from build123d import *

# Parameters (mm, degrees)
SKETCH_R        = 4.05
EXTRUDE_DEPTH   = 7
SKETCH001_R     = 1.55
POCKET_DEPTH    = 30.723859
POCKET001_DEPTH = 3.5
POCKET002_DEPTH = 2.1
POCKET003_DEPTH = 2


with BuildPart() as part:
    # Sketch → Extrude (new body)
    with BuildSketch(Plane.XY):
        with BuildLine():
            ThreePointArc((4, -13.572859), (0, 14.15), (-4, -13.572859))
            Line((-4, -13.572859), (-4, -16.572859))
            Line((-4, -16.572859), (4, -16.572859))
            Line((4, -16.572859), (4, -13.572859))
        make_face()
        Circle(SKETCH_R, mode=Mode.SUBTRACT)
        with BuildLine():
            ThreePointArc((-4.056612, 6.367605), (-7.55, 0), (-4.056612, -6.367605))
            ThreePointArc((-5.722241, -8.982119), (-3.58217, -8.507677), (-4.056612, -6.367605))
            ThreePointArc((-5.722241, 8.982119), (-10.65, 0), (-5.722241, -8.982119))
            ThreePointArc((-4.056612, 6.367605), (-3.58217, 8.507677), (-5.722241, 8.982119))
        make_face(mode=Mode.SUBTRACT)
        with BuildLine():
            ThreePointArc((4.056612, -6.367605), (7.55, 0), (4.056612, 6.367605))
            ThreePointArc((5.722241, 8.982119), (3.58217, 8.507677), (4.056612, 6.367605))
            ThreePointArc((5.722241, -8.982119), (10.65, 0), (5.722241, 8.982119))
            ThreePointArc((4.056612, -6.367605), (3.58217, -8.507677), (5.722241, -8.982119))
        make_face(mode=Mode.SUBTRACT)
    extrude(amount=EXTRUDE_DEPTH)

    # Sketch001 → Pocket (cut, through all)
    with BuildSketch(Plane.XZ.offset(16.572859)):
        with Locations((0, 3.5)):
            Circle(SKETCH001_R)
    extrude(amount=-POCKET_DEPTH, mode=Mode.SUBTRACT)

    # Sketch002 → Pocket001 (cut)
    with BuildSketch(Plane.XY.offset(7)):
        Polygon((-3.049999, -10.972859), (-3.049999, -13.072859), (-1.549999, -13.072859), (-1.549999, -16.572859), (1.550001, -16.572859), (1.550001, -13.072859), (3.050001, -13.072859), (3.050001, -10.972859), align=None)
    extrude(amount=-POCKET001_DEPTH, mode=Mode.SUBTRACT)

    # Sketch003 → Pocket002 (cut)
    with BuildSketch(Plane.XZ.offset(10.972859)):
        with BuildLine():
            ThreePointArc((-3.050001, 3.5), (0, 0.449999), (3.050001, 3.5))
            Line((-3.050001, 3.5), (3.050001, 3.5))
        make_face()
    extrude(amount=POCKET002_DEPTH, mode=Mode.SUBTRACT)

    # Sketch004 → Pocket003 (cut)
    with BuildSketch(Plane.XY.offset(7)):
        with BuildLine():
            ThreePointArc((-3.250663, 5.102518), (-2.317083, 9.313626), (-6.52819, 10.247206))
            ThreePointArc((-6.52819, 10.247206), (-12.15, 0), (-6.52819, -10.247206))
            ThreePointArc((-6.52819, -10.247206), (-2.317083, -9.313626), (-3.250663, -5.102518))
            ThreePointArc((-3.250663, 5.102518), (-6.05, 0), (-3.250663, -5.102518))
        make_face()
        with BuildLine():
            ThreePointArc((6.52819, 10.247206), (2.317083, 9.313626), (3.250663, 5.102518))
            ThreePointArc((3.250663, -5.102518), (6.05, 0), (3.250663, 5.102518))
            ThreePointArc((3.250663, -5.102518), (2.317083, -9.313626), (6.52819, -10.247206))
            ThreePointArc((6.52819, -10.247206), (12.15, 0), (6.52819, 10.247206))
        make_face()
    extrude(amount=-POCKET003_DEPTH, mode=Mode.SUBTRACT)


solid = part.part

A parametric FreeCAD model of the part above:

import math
import FreeCAD as App
import Part
import Sketcher


def add_polygon(sketch, points):
    """Adds a closed chain of lines whose ends are joined by coincident constraints."""
    first, n = sketch.GeometryCount, len(points)
    for a, b in zip(points, points[1:] + points[:1]):
        sketch.addGeometry(Part.LineSegment(App.Vector(*a, 0), App.Vector(*b, 0)), False)
    for i in range(n):
        sketch.addConstraint(Sketcher.Constraint("Coincident", first + i, 2, first + (i + 1) % n, 1))

doc = App.newDocument("Part")
body = doc.addObject("PartDesign::Body", "Body")

# Sketch on XY plane
sketch1 = body.newObject("Sketcher::SketchObject", "Sketch")
sketch1.AttachmentSupport = (doc.getObject("XY_Plane"), [""])
sketch1.MapMode = "FlatFace"
sketch1.addGeometry([
    Part.ArcOfCircle(Part.Circle(App.Vector(0, 0, 0), App.Vector(0, 0, 1), 14.2), math.radians(-74), math.radians(254)),  # 0
    Part.LineSegment(App.Vector(-4, -13.6, 0), App.Vector(-4, -16.6, 0)),  # 1
    Part.LineSegment(App.Vector(-4, -16.6, 0), App.Vector(4, -16.6, 0)),  # 2
    Part.LineSegment(App.Vector(4, -16.6, 0), App.Vector(4, -13.6, 0)),  # 3
    Part.ArcOfCircle(Part.Circle(App.Vector(-4.9, 7.7, 0), App.Vector(0, 0, 1), 1.6), math.radians(-57), math.radians(122)),  # 4
    Part.ArcOfCircle(Part.Circle(App.Vector(0, 0, 0), App.Vector(0, 0, 1), 7.5), math.radians(122), math.radians(238)),  # 5
    Part.ArcOfCircle(Part.Circle(App.Vector(-4.9, -7.7, 0), App.Vector(0, 0, 1), 1.6), math.radians(-122), math.radians(57)),  # 6
    Part.ArcOfCircle(Part.Circle(App.Vector(0, 0, 0), App.Vector(0, 0, 1), 10.7), math.radians(123), math.radians(237)),  # 7
    Part.Circle(App.Vector(0, 0, 0), App.Vector(0, 0, 1), 4),  # 8
    Part.ArcOfCircle(Part.Circle(App.Vector(4.9, -7.7, 0), App.Vector(0, 0, 1), 1.6), math.radians(123), math.radians(302)),  # 9
    Part.ArcOfCircle(Part.Circle(App.Vector(0, 0, 0), App.Vector(0, 0, 1), 7.5), math.radians(-58), math.radians(58)),  # 10
    Part.ArcOfCircle(Part.Circle(App.Vector(4.9, 7.7, 0), App.Vector(0, 0, 1), 1.6), math.radians(58), math.radians(237)),  # 11
    Part.ArcOfCircle(Part.Circle(App.Vector(0, 0, 0), App.Vector(0, 0, 1), 10.7), math.radians(-57), math.radians(57)),  # 12
], False)
sketch1.addConstraint([
    Sketcher.Constraint("Coincident", 0, 2, 1, 1),
    Sketcher.Constraint("Coincident", 1, 2, 2, 1),
    Sketcher.Constraint("Coincident", 2, 2, 3, 1),
    Sketcher.Constraint("Coincident", 3, 2, 0, 1),
    Sketcher.Constraint("Tangent", 4, 1, 5, 1),
    Sketcher.Constraint("Tangent", 5, 2, 6, 2),
    Sketcher.Constraint("Tangent", 6, 1, 7, 2),
    Sketcher.Constraint("Tangent", 7, 1, 4, 2),
    Sketcher.Constraint("Tangent", 9, 1, 10, 1),
    Sketcher.Constraint("Tangent", 10, 2, 11, 2),
    Sketcher.Constraint("Tangent", 11, 1, 12, 2),
    Sketcher.Constraint("Tangent", 12, 1, 9, 2),
    Sketcher.Constraint("Vertical", 1),
    Sketcher.Constraint("Horizontal", 2),
    Sketcher.Constraint("Vertical", 3),
    Sketcher.Constraint("Coincident", 0, 3, -1, 1),
    Sketcher.Constraint("Coincident", 5, 3, -1, 1),
    Sketcher.Constraint("Coincident", 7, 3, -1, 1),
    Sketcher.Constraint("Coincident", 8, 3, -1, 1),
    Sketcher.Constraint("Coincident", 10, 3, -1, 1),
    Sketcher.Constraint("Coincident", 12, 3, -1, 1),
    Sketcher.Constraint("Equal", 6, 9),
    Sketcher.Constraint("Equal", 5, 10),
    Sketcher.Constraint("Horizontal", 6, 3, 9, 3),
    Sketcher.Constraint("Horizontal", 4, 3, 11, 3),
    Sketcher.Constraint("Horizontal", 0, 2, 3, 2),
    Sketcher.Constraint("Vertical", 4, 3, 6, 3),
    Sketcher.Constraint("Diameter", 8, 8.1),
    Sketcher.Constraint("DistanceX", 2, 1, 2, 2, 8.0),
    Sketcher.Constraint("DistanceY", 1, 2, 1, 1, 3.0),
    Sketcher.Constraint("Radius", 0, 14.15),
    Sketcher.Constraint("Radius", 4, 1.55),
    Sketcher.Constraint("Radius", 5, 7.549999),
    Sketcher.Constraint("DistanceY", -1, 1, 4, 3, 7.674862),
])
pad1 = body.newObject("PartDesign::Pad", "Pad")
pad1.Profile = sketch1
pad1.Length = 7

# Sketch on XZ plane
sketch2 = body.newObject("Sketcher::SketchObject", "Sketch001")
sketch2.AttachmentSupport = (doc.getObject("XZ_Plane"), [""])
sketch2.MapMode = "FlatFace"
sketch2.AttachmentOffset = App.Placement(App.Vector(0, 0, 16.572859), App.Rotation())
sketch2.addGeometry(Part.Circle(App.Vector(0, 3.5, 0), App.Vector(0, 0, 1), 1.6), False)
sketch2.addConstraint([
    Sketcher.Constraint("PointOnObject", 0, 3, -2),
    Sketcher.Constraint("Diameter", 0, 3.1),
    Sketcher.Constraint("DistanceY", -1, 1, 0, 3, 3.5),
])
pocket1 = body.newObject("PartDesign::Pocket", "Pocket")
pocket1.Profile = sketch2
pocket1.Type = "ThroughAll"

# Sketch on XY plane
sketch3 = body.newObject("Sketcher::SketchObject", "Sketch002")
sketch3.AttachmentSupport = (doc.getObject("XY_Plane"), [""])
sketch3.MapMode = "FlatFace"
sketch3.AttachmentOffset = App.Placement(App.Vector(0, 0, 7), App.Rotation())
add_polygon(sketch3, [(-3, -11), (-3, -13.1), (-1.5, -13.1), (-1.5, -16.6), (1.6, -16.6), (1.6, -13.1), (3.1, -13.1), (3.1, -11)])  # lines 0-7
sketch3.addConstraint([
    Sketcher.Constraint("Vertical", 0),
    Sketcher.Constraint("Horizontal", 1),
    Sketcher.Constraint("Vertical", 2),
    Sketcher.Constraint("Horizontal", 3),
    Sketcher.Constraint("Vertical", 4),
    Sketcher.Constraint("Horizontal", 5),
    Sketcher.Constraint("Vertical", 6),
    Sketcher.Constraint("Horizontal", 7),
    Sketcher.Constraint("Symmetric", 1, 2, 4, 2, -2),
    Sketcher.Constraint("Equal", 1, 5),
    Sketcher.Constraint("DistanceX", 1, 1, 1, 2, 1.5),
    Sketcher.Constraint("DistanceX", 3, 1, 3, 2, 3.1),
    Sketcher.Constraint("DistanceY", 0, 2, 0, 1, 2.1),
    Sketcher.Constraint("DistanceY", 2, 2, 2, 1, 3.5),
    Sketcher.Constraint("DistanceY", 0, 2, -1, 1, 13.072859),
])
pocket2 = body.newObject("PartDesign::Pocket", "Pocket001")
pocket2.Profile = sketch3
pocket2.Length = 3.5

# Sketch on XZ plane
sketch4 = body.newObject("Sketcher::SketchObject", "Sketch003")
sketch4.AttachmentSupport = (doc.getObject("XZ_Plane"), [""])
sketch4.MapMode = "FlatFace"
sketch4.AttachmentOffset = App.Placement(App.Vector(0, 0, 10.972859), App.Rotation())
sketch4.addGeometry([
    Part.ArcOfCircle(Part.Circle(App.Vector(0, 3.5, 0), App.Vector(0, 0, 1), 3.1), math.radians(180), math.radians(360)),
    Part.LineSegment(App.Vector(3.1, 3.5, 0), App.Vector(-3.1, 3.5, 0)),
], False)
sketch4.addConstraint([
    Sketcher.Constraint("Coincident", 0, 1, 1, 2),
    Sketcher.Constraint("Coincident", 1, 1, 0, 2),
    Sketcher.Constraint("Horizontal", 1),
    Sketcher.Constraint("PointOnObject", 0, 3, -2),
    Sketcher.Constraint("Radius", 0, 3.050001),
    Sketcher.Constraint("DistanceY", -1, 1, 0, 3, 3.5),
    Sketcher.Constraint("DistanceY", -1, 1, 0, 1, 3.5),
])
pocket3 = body.newObject("PartDesign::Pocket", "Pocket002")
pocket3.Profile = sketch4
pocket3.Length = 2.1
pocket3.Reversed = True

# Sketch on XY plane
sketch5 = body.newObject("Sketcher::SketchObject", "Sketch004")
sketch5.AttachmentSupport = (doc.getObject("XY_Plane"), [""])
sketch5.MapMode = "FlatFace"
sketch5.AttachmentOffset = App.Placement(App.Vector(0, 0, 7), App.Rotation())
sketch5.addGeometry([
    Part.ArcOfCircle(Part.Circle(App.Vector(-4.9, 7.7, 0), App.Vector(0, 0, 1), 3), math.radians(-58), math.radians(122)),  # 0
    Part.ArcOfCircle(Part.Circle(App.Vector(0, 0, 0), App.Vector(0, 0, 1), 12.1), math.radians(122), math.radians(238)),  # 1
    Part.ArcOfCircle(Part.Circle(App.Vector(-4.9, -7.7, 0), App.Vector(0, 0, 1), 3), math.radians(-122), math.radians(58)),  # 2
    Part.ArcOfCircle(Part.Circle(App.Vector(0, 0, 0), App.Vector(0, 0, 1), 6), math.radians(123), math.radians(237)),  # 3
    Part.ArcOfCircle(Part.Circle(App.Vector(4.9, 7.7, 0), App.Vector(0, 0, 1), 3), math.radians(58), math.radians(238)),  # 4
    Part.ArcOfCircle(Part.Circle(App.Vector(0, 0, 0), App.Vector(0, 0, 1), 6), math.radians(-57), math.radians(57)),  # 5
    Part.ArcOfCircle(Part.Circle(App.Vector(4.9, -7.7, 0), App.Vector(0, 0, 1), 3), math.radians(122), math.radians(302)),  # 6
    Part.ArcOfCircle(Part.Circle(App.Vector(0, 0, 0), App.Vector(0, 0, 1), 12.1), math.radians(-58), math.radians(58)),  # 7
], False)
sketch5.addConstraint([
    Sketcher.Constraint("Tangent", 0, 2, 1, 1),
    Sketcher.Constraint("Tangent", 1, 2, 2, 1),
    Sketcher.Constraint("Tangent", 2, 2, 3, 2),
    Sketcher.Constraint("Tangent", 3, 1, 0, 1),
    Sketcher.Constraint("Tangent", 4, 2, 5, 2),
    Sketcher.Constraint("Tangent", 5, 1, 6, 1),
    Sketcher.Constraint("Tangent", 6, 2, 7, 1),
    Sketcher.Constraint("Tangent", 7, 2, 4, 1),
    Sketcher.Constraint("Coincident", 1, 3, -1, 1),
    Sketcher.Constraint("Coincident", 3, 3, -1, 1),
    Sketcher.Constraint("Coincident", 5, 3, -1, 1),
    Sketcher.Constraint("Coincident", 7, 3, -1, 1),
    Sketcher.Constraint("Equal", 2, 4),
    Sketcher.Constraint("Equal", 3, 5),
    Sketcher.Constraint("Horizontal", 0, 3, 4, 3),
    Sketcher.Constraint("Horizontal", 2, 3, 6, 3),
    Sketcher.Constraint("Vertical", 0, 3, 2, 3),
    Sketcher.Constraint("Radius", 0, 3.05),
    Sketcher.Constraint("Radius", 1, 12.15),
    Sketcher.Constraint("DistanceY", -1, 1, 0, 3, 7.674862),
])
pocket4 = body.newObject("PartDesign::Pocket", "Pocket003")
pocket4.Profile = sketch5
pocket4.Length = 2

doc.recompute()
